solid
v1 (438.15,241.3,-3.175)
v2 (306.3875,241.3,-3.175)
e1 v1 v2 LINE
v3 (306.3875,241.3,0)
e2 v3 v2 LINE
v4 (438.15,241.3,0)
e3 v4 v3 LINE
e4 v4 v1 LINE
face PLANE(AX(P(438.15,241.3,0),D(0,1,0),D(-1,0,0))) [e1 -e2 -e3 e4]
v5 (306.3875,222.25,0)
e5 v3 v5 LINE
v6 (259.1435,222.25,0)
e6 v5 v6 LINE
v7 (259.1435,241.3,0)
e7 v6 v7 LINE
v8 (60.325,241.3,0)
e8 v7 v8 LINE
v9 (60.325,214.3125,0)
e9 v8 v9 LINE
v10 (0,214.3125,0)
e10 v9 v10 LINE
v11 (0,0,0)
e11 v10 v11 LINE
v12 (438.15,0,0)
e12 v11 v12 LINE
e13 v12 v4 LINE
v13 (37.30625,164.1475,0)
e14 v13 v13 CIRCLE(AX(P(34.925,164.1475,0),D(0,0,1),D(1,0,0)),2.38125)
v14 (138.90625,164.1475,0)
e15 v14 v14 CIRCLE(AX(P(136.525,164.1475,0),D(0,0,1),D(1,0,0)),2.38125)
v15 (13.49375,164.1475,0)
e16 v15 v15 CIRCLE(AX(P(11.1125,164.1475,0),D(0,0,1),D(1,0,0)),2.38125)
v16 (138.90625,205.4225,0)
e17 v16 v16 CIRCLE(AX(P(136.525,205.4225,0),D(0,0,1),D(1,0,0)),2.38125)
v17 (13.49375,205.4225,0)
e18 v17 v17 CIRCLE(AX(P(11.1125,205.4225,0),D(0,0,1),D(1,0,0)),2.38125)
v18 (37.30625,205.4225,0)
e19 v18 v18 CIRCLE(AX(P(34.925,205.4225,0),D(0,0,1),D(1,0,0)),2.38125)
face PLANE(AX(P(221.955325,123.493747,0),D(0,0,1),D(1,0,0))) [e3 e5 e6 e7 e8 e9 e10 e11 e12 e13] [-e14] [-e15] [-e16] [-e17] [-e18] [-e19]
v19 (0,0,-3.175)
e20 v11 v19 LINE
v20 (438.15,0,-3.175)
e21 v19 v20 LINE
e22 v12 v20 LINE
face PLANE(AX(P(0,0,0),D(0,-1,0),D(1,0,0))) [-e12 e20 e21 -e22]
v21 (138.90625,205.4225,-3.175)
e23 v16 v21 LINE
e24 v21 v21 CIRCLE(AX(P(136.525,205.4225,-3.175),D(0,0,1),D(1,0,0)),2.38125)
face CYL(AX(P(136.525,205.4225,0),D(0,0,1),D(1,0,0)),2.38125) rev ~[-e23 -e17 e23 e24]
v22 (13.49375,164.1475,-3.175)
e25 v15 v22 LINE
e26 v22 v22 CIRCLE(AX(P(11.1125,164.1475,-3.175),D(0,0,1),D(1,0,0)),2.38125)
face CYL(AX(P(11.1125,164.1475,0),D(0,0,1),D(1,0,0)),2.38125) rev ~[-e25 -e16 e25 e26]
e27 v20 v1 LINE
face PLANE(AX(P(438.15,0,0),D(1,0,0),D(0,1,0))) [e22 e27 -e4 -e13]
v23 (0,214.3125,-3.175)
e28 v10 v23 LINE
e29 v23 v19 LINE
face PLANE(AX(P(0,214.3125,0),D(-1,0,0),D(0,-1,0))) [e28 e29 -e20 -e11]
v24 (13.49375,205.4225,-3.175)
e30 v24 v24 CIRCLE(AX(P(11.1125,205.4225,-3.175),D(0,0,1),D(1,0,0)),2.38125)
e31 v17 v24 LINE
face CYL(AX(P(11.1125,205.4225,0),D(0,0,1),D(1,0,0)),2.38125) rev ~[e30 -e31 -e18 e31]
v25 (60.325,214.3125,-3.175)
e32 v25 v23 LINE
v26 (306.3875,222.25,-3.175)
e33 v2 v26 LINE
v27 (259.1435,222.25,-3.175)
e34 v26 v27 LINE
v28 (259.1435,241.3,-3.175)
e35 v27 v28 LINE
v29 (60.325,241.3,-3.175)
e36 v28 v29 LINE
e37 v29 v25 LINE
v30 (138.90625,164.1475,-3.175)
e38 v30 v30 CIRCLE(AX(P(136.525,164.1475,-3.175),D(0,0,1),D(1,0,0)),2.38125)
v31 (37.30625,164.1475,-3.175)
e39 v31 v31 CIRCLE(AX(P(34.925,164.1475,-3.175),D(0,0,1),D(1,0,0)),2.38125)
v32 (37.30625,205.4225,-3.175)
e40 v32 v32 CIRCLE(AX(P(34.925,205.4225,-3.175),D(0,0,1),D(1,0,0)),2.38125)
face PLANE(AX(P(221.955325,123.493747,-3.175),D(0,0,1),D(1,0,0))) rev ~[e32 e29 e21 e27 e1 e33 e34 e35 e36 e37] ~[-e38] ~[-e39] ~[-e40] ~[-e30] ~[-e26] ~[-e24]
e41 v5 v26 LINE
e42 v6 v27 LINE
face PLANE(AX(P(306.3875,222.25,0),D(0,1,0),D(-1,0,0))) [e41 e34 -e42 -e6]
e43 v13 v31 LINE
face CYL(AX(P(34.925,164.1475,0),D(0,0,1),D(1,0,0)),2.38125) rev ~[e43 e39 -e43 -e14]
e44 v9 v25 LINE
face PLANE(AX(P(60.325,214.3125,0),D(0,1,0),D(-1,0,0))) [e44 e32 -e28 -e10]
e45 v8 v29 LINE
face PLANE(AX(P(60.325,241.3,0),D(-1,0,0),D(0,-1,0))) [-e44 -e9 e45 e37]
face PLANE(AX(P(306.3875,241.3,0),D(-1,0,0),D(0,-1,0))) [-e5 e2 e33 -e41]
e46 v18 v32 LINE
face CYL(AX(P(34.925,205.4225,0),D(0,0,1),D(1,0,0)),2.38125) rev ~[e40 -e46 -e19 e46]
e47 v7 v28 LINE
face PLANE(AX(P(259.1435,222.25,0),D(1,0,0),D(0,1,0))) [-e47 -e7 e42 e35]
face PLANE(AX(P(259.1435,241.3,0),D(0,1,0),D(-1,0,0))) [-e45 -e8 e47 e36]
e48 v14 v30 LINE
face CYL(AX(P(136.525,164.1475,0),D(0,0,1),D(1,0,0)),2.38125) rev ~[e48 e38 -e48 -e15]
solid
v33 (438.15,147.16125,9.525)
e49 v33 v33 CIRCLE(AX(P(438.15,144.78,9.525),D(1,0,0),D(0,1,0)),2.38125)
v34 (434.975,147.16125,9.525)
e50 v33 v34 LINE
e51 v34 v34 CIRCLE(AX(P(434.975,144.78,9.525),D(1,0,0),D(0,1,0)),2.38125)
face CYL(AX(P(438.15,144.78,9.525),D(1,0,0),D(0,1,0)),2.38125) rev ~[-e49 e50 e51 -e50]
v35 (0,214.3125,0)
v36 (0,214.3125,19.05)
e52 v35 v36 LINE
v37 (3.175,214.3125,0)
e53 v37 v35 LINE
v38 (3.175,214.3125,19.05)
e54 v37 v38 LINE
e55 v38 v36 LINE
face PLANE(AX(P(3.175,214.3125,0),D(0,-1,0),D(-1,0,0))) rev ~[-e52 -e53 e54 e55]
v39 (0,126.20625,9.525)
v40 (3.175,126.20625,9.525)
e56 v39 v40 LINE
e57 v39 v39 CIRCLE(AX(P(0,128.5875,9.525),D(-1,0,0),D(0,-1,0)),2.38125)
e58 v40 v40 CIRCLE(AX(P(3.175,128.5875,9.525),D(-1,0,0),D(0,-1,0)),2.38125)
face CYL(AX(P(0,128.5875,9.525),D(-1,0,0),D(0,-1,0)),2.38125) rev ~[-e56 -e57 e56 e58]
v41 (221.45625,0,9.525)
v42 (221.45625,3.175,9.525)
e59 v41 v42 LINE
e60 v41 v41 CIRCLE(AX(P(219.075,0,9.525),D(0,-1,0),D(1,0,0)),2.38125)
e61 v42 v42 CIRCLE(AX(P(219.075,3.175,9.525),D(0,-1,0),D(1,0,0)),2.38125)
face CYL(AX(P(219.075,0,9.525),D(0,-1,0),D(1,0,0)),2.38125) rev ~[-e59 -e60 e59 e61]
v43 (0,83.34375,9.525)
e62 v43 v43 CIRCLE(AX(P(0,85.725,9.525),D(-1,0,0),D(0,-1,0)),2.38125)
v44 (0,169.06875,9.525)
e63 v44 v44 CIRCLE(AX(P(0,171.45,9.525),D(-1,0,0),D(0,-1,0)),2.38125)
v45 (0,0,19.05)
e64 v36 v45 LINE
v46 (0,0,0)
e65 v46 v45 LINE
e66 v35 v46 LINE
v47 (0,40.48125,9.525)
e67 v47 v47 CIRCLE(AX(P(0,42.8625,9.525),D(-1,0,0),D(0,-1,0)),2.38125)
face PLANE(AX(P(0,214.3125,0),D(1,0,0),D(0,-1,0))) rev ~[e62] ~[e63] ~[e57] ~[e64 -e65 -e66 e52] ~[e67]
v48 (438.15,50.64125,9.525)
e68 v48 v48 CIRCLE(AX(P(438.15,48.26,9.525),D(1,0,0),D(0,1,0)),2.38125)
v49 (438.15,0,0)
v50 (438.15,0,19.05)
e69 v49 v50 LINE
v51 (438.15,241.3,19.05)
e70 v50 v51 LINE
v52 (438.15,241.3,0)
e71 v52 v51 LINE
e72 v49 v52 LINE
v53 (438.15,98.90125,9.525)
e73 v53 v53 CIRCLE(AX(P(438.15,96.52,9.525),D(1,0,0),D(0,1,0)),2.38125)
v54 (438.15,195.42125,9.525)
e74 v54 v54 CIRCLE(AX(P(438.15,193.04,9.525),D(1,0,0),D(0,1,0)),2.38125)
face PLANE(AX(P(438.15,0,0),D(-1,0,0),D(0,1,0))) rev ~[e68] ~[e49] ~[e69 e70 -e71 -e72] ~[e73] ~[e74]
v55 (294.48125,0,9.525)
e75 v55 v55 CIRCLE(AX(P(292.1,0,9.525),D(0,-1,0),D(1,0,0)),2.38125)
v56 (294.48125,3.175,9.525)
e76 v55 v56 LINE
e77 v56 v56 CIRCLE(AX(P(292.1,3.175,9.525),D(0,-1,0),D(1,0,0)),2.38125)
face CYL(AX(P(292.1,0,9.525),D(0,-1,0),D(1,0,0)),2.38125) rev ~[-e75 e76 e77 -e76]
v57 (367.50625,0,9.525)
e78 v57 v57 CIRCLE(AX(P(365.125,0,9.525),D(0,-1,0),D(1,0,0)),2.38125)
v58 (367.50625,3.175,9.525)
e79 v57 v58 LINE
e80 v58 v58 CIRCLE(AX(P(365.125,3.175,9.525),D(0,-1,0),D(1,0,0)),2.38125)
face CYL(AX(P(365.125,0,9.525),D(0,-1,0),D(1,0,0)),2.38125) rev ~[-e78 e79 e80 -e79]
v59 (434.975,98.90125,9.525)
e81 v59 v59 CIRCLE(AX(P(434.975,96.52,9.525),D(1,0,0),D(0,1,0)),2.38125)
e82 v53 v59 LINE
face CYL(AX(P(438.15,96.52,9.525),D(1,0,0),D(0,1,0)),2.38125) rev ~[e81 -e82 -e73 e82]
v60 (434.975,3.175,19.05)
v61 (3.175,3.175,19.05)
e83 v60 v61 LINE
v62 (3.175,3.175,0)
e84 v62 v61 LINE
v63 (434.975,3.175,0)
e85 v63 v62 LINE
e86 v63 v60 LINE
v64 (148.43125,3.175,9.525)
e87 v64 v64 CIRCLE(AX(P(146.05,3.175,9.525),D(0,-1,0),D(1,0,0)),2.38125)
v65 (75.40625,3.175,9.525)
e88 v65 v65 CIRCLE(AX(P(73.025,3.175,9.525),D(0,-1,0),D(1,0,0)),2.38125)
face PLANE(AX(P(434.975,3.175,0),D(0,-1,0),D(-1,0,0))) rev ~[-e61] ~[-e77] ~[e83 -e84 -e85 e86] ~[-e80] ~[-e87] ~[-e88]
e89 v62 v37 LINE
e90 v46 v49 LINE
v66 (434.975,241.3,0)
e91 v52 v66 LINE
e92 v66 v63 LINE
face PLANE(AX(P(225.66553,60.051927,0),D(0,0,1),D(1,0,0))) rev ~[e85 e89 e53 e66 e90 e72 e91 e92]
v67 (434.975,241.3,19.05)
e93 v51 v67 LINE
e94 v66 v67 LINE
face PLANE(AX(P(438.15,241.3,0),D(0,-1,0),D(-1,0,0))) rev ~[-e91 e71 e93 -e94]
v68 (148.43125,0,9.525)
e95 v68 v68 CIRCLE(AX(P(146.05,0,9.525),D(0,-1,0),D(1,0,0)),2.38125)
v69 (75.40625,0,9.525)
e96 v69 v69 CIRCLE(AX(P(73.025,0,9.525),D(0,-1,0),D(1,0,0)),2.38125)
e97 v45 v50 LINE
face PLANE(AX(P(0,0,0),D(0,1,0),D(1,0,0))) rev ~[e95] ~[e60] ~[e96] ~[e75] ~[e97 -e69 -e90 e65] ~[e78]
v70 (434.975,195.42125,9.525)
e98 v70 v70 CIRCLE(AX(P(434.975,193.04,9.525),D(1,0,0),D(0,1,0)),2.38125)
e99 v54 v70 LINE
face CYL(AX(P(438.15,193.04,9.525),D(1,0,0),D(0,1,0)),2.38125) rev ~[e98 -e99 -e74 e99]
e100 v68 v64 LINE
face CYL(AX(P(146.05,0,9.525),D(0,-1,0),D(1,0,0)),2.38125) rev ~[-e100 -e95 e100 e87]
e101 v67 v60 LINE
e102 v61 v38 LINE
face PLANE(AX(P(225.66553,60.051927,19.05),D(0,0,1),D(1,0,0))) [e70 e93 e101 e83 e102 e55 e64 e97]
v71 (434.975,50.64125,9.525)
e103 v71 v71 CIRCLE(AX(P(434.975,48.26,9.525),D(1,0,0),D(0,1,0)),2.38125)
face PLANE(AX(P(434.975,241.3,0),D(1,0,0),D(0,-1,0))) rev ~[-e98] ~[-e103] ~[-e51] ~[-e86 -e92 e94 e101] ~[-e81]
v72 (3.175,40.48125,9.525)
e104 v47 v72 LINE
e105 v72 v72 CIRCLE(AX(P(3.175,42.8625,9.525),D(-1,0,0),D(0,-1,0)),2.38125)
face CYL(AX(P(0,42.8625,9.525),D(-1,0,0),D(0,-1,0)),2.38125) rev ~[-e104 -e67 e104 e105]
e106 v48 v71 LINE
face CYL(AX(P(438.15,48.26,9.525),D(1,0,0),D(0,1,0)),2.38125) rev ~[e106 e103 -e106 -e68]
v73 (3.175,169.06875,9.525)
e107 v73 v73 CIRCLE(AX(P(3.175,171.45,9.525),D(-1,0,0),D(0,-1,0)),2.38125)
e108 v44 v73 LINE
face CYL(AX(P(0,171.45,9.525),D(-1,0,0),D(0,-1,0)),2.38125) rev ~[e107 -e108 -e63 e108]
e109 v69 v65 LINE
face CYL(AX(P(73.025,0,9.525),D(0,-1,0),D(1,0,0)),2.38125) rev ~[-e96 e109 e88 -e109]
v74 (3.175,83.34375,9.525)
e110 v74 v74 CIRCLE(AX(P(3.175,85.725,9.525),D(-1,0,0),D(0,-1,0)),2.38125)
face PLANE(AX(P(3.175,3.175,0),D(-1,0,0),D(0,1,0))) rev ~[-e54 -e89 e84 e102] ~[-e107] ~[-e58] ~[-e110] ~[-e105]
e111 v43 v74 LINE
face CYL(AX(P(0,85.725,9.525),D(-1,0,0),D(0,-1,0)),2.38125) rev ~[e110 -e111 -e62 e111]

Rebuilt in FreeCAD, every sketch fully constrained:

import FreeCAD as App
import Part
import Sketcher
from FreeCAD import Vector
Q = App.Units.Quantity


def add_polygon(sketch, points):
    """Adds a closed chain of lines whose ends are joined by coincident constraints."""
    first, n = sketch.GeometryCount, len(points)
    for a, b in zip(points, points[1:] + points[:1]):
        sketch.addGeometry(Part.LineSegment(App.Vector(*a, 0), App.Vector(*b, 0)), False)
    for i in range(n):
        sketch.addConstraint(Sketcher.Constraint("Coincident", first + i, 2, first + (i + 1) % n, 1))

doc = App.newDocument("Part")
body = doc.addObject("PartDesign::Body", "Body")

sketch1 = body.newObject("Sketcher::SketchObject", "Sketch")
sketch1.AttachmentSupport = (doc.getObject("XY_Plane"), [""])
sketch1.MapMode = "FlatFace"
add_polygon(sketch1, [(0, 214.3), (0, 0), (438.1, 0), (438.1, 241.3), (435, 241.3), (435, 3.2), (3.2, 3.2), (3.2, 214.3)])
sketch1.addConstraint(Sketcher.Constraint("Vertical", 0))
sketch1.addConstraint(Sketcher.Constraint("Horizontal", 1))
sketch1.addConstraint(Sketcher.Constraint("Vertical", 2))
sketch1.addConstraint(Sketcher.Constraint("Horizontal", 3))
sketch1.addConstraint(Sketcher.Constraint("Vertical", 4))
sketch1.addConstraint(Sketcher.Constraint("Horizontal", 5))
sketch1.addConstraint(Sketcher.Constraint("Vertical", 6))
sketch1.addConstraint(Sketcher.Constraint("Horizontal", 7))
sketch1.addConstraint(Sketcher.Constraint("Coincident", 0, 2, -1, 1))
sketch1.addConstraint(Sketcher.Constraint("Equal", 3, 7))
sketch1.addConstraint(Sketcher.Constraint("DistanceX", 5, 2, 5, 1, Q("17 in")))
sketch1.addConstraint(Sketcher.Constraint("DistanceY", 2, 1, 2, 2, Q("9.5 in")))
sketch1.addConstraint(Sketcher.Constraint("DistanceX", 1, 1, 1, 2, Q("17.25 in")))
sketch1.addConstraint(Sketcher.Constraint("DistanceY", 0, 2, 0, 1, Q("8.4375 in")))
sketch1.addConstraint(Sketcher.Constraint("DistanceY", 4, 2, 4, 1, Q("9.375 in")))
pad1 = body.newObject("PartDesign::Pad", "Pad")
pad1.Profile = sketch1
pad1.Length = Q("0.75 in")

sketch2 = body.newObject("Sketcher::SketchObject", "Sketch001")
sketch2.AttachmentSupport = (doc.getObject("YZ_Plane"), [""])
sketch2.MapMode = "FlatFace"
sketch2.addGeometry(Part.Circle(Vector(171.4, 9.5, 0), Vector(0, 0, 1), 2.4), False)
sketch2.addGeometry(Part.Circle(Vector(128.6, 9.5, 0), Vector(0, 0, 1), 2.4), False)
sketch2.addGeometry(Part.Circle(Vector(85.7, 9.5, 0), Vector(0, 0, 1), 2.4), False)
sketch2.addGeometry(Part.Circle(Vector(42.9, 9.5, 0), Vector(0, 0, 1), 2.4), False)
sketch2.addConstraint(Sketcher.Constraint("Equal", 0, 1))
sketch2.addConstraint(Sketcher.Constraint("Equal", 1, 2))
sketch2.addConstraint(Sketcher.Constraint("Equal", 2, 3))
sketch2.addConstraint(Sketcher.Constraint("Horizontal", 0, 3, 1, 3))
sketch2.addConstraint(Sketcher.Constraint("Horizontal", 1, 3, 2, 3))
sketch2.addConstraint(Sketcher.Constraint("Horizontal", 2, 3, 3, 3))
sketch2.addConstraint(Sketcher.Constraint("Diameter", 0, Q("0.1875 in")))
sketch2.addConstraint(Sketcher.Constraint("DistanceX", -1, 1, 0, 3, Q("6.75 in")))
sketch2.addConstraint(Sketcher.Constraint("DistanceY", -1, 1, 0, 3, Q("0.375 in")))
sketch2.addConstraint(Sketcher.Constraint("DistanceX", -1, 1, 1, 3, Q("5.0625 in")))
sketch2.addConstraint(Sketcher.Constraint("DistanceX", -1, 1, 2, 3, Q("3.375 in")))
sketch2.addConstraint(Sketcher.Constraint("DistanceX", -1, 1, 3, 3, Q("1.6875 in")))
pocket1 = body.newObject("PartDesign::Pocket", "Pocket")
pocket1.Profile = sketch2
pocket1.Length = Q("0.5 in")
pocket1.Reversed = True

sketch3 = body.newObject("Sketcher::SketchObject", "Sketch002")
sketch3.AttachmentSupport = (doc.getObject("XZ_Plane"), [""])
sketch3.MapMode = "FlatFace"
sketch3.addGeometry(Part.Circle(Vector(73, 9.5, 0), Vector(0, 0, 1), 2.4), False)
sketch3.addGeometry(Part.Circle(Vector(146.1, 9.5, 0), Vector(0, 0, 1), 2.4), False)
sketch3.addGeometry(Part.Circle(Vector(219.1, 9.5, 0), Vector(0, 0, 1), 2.4), False)
sketch3.addGeometry(Part.Circle(Vector(292.1, 9.5, 0), Vector(0, 0, 1), 2.4), False)
sketch3.addGeometry(Part.Circle(Vector(365.1, 9.5, 0), Vector(0, 0, 1), 2.4), False)
sketch3.addConstraint(Sketcher.Constraint("Equal", 0, 1))
sketch3.addConstraint(Sketcher.Constraint("Equal", 1, 2))
sketch3.addConstraint(Sketcher.Constraint("Equal", 2, 3))
sketch3.addConstraint(Sketcher.Constraint("Equal", 3, 4))
sketch3.addConstraint(Sketcher.Constraint("Horizontal", 0, 3, 1, 3))
sketch3.addConstraint(Sketcher.Constraint("Horizontal", 1, 3, 2, 3))
sketch3.addConstraint(Sketcher.Constraint("Horizontal", 2, 3, 3, 3))
sketch3.addConstraint(Sketcher.Constraint("Horizontal", 3, 3, 4, 3))
sketch3.addConstraint(Sketcher.Constraint("Diameter", 0, Q("0.1875 in")))
sketch3.addConstraint(Sketcher.Constraint("DistanceX", -1, 1, 3, 3, Q("11.5 in")))
sketch3.addConstraint(Sketcher.Constraint("DistanceX", 0, 3, 4, 3, Q("11.5 in")))
sketch3.addConstraint(Sketcher.Constraint("DistanceX", -1, 1, 1, 3, Q("5.75 in")))
sketch3.addConstraint(Sketcher.Constraint("DistanceX", 0, 3, 2, 3, Q("5.75 in")))
sketch3.addConstraint(Sketcher.Constraint("DistanceX", -1, 1, 0, 3, Q("2.875 in")))
sketch3.addConstraint(Sketcher.Constraint("DistanceY", -1, 1, 0, 3, Q("0.375 in")))
pocket2 = body.newObject("PartDesign::Pocket", "Pocket001")
pocket2.Profile = sketch3
pocket2.Length = Q("0.5 in")

sketch4 = body.newObject("Sketcher::SketchObject", "Sketch003")
sketch4.AttachmentSupport = (doc.getObject("YZ_Plane"), [""])
sketch4.MapMode = "FlatFace"
sketch4.AttachmentOffset = App.Placement(Vector(0, 0, 17.25 * 25.4), App.Rotation())
sketch4.addGeometry(Part.Circle(Vector(48.3, 9.5, 0), Vector(0, 0, 1), 2.4), False)
sketch4.addGeometry(Part.Circle(Vector(96.5, 9.5, 0), Vector(0, 0, 1), 2.4), False)
sketch4.addGeometry(Part.Circle(Vector(144.8, 9.5, 0), Vector(0, 0, 1), 2.4), False)
sketch4.addGeometry(Part.Circle(Vector(193, 9.5, 0), Vector(0, 0, 1), 2.4), False)
sketch4.addConstraint(Sketcher.Constraint("Equal", 0, 1))
sketch4.addConstraint(Sketcher.Constraint("Equal", 1, 2))
sketch4.addConstraint(Sketcher.Constraint("Equal", 2, 3))
sketch4.addConstraint(Sketcher.Constraint("Horizontal", 0, 3, 1, 3))
sketch4.addConstraint(Sketcher.Constraint("Horizontal", 1, 3, 2, 3))
sketch4.addConstraint(Sketcher.Constraint("Horizontal", 2, 3, 3, 3))
sketch4.addConstraint(Sketcher.Constraint("Diameter", 0, Q("0.1875 in")))
sketch4.addConstraint(Sketcher.Constraint("DistanceX", -1, 1, 0, 3, Q("1.9 in")))
sketch4.addConstraint(Sketcher.Constraint("DistanceX", -1, 1, 1, 3, Q("3.8 in")))
sketch4.addConstraint(Sketcher.Constraint("DistanceX", -1, 1, 2, 3, Q("5.7 in")))
sketch4.addConstraint(Sketcher.Constraint("DistanceX", -1, 1, 3, 3, Q("7.6 in")))
sketch4.addConstraint(Sketcher.Constraint("DistanceY", -1, 1, 0, 3, Q("0.375 in")))
pocket3 = body.newObject("PartDesign::Pocket", "Pocket002")
pocket3.Profile = sketch4
pocket3.Length = Q("0.5 in")
body2 = doc.addObject("PartDesign::Body", "Body001")

sketch5 = body2.newObject("Sketcher::SketchObject", "Sketch004")
sketch5.AttachmentSupport = (doc.getObject("XY_Plane001"), [""])
sketch5.MapMode = "FlatFace"
add_polygon(sketch5, [(60.3, 214.3), (0, 214.3), (0, 0), (438.1, 0), (438.1, 241.3), (306.4, 241.3), (306.4, 222.2), (259.1, 222.2), (259.1, 241.3), (60.3, 241.3)])
sketch5.addGeometry(Part.Circle(Vector(11.1, 164.1, 0), Vector(0, 0, 1), 2.4), False)
sketch5.addGeometry(Part.Circle(Vector(34.9, 164.1, 0), Vector(0, 0, 1), 2.4), False)
sketch5.addGeometry(Part.Circle(Vector(136.5, 164.1, 0), Vector(0, 0, 1), 2.4), False)
sketch5.addGeometry(Part.Circle(Vector(11.1, 205.4, 0), Vector(0, 0, 1), 2.4), False)
sketch5.addGeometry(Part.Circle(Vector(34.9, 205.4, 0), Vector(0, 0, 1), 2.4), False)
sketch5.addGeometry(Part.Circle(Vector(136.5, 205.4, 0), Vector(0, 0, 1), 2.4), False)
sketch5.addConstraint(Sketcher.Constraint("Horizontal", 0))
sketch5.addConstraint(Sketcher.Constraint("Vertical", 1))
sketch5.addConstraint(Sketcher.Constraint("Horizontal", 2))
sketch5.addConstraint(Sketcher.Constraint("Vertical", 3))
sketch5.addConstraint(Sketcher.Constraint("Horizontal", 4))
sketch5.addConstraint(Sketcher.Constraint("Vertical", 5))
sketch5.addConstraint(Sketcher.Constraint("Horizontal", 6))
sketch5.addConstraint(Sketcher.Constraint("Vertical", 7))
sketch5.addConstraint(Sketcher.Constraint("Horizontal", 8))
sketch5.addConstraint(Sketcher.Constraint("Vertical", 9))
sketch5.addConstraint(Sketcher.Constraint("Coincident", 1, 2, -1, 1))
sketch5.addConstraint(Sketcher.Constraint("Equal", 10, 11))
sketch5.addConstraint(Sketcher.Constraint("Equal", 11, 12))
sketch5.addConstraint(Sketcher.Constraint("Equal", 12, 13))
sketch5.addConstraint(Sketcher.Constraint("Equal", 13, 14))
sketch5.addConstraint(Sketcher.Constraint("Equal", 14, 15))
sketch5.addConstraint(Sketcher.Constraint("Horizontal", 10, 3, 11, 3))
sketch5.addConstraint(Sketcher.Constraint("Horizontal", 11, 3, 12, 3))
sketch5.addConstraint(Sketcher.Constraint("Horizontal", 13, 3, 14, 3))
sketch5.addConstraint(Sketcher.Constraint("Horizontal", 14, 3, 15, 3))
sketch5.addConstraint(Sketcher.Constraint("Horizontal", 4, 2, 7, 2))
sketch5.addConstraint(Sketcher.Constraint("Vertical", 10, 3, 13, 3))
sketch5.addConstraint(Sketcher.Constraint("Vertical", 11, 3, 14, 3))
sketch5.addConstraint(Sketcher.Constraint("Vertical", 12, 3, 15, 3))
sketch5.addConstraint(Sketcher.Constraint("Diameter", 10, Q("0.1875 in")))
sketch5.addConstraint(Sketcher.Constraint("DistanceY", 3, 1, 3, 2, Q("9.5 in")))
sketch5.addConstraint(Sketcher.Constraint("DistanceX", 11, 3, 12, 3, Q("4 in")))
sketch5.addConstraint(Sketcher.Constraint("DistanceX", 14, 3, 8, 2, Q("1 in")))
sketch5.addConstraint(Sketcher.Constraint("DistanceX", 2, 1, 2, 2, Q("17.25 in")))
sketch5.addConstraint(Sketcher.Constraint("DistanceX", 6, 2, 6, 1, Q("1.86 in")))
sketch5.addConstraint(Sketcher.Constraint("DistanceY", 5, 2, 5, 1, Q("0.75 in")))
sketch5.addConstraint(Sketcher.Constraint("DistanceX", 0, 2, 0, 1, Q("2.375 in")))
sketch5.addConstraint(Sketcher.Constraint("DistanceX", 4, 2, 4, 1, Q("5.1875 in")))
sketch5.addConstraint(Sketcher.Constraint("DistanceY", 1, 2, 1, 1, Q("8.4375 in")))
sketch5.addConstraint(Sketcher.Constraint("DistanceY", 13, 3, 0, 2, Q("0.35 in")))
sketch5.addConstraint(Sketcher.Constraint("DistanceX", -1, 1, 10, 3, Q("0.4375 in")))
sketch5.addConstraint(Sketcher.Constraint("DistanceY", 10, 3, 13, 3, Q("1.625 in")))
pad2 = body2.newObject("PartDesign::Pad", "Pad001")
pad2.Profile = sketch5
pad2.Length = Q("0.125 in")
pad2.Reversed = True

doc.recompute()
